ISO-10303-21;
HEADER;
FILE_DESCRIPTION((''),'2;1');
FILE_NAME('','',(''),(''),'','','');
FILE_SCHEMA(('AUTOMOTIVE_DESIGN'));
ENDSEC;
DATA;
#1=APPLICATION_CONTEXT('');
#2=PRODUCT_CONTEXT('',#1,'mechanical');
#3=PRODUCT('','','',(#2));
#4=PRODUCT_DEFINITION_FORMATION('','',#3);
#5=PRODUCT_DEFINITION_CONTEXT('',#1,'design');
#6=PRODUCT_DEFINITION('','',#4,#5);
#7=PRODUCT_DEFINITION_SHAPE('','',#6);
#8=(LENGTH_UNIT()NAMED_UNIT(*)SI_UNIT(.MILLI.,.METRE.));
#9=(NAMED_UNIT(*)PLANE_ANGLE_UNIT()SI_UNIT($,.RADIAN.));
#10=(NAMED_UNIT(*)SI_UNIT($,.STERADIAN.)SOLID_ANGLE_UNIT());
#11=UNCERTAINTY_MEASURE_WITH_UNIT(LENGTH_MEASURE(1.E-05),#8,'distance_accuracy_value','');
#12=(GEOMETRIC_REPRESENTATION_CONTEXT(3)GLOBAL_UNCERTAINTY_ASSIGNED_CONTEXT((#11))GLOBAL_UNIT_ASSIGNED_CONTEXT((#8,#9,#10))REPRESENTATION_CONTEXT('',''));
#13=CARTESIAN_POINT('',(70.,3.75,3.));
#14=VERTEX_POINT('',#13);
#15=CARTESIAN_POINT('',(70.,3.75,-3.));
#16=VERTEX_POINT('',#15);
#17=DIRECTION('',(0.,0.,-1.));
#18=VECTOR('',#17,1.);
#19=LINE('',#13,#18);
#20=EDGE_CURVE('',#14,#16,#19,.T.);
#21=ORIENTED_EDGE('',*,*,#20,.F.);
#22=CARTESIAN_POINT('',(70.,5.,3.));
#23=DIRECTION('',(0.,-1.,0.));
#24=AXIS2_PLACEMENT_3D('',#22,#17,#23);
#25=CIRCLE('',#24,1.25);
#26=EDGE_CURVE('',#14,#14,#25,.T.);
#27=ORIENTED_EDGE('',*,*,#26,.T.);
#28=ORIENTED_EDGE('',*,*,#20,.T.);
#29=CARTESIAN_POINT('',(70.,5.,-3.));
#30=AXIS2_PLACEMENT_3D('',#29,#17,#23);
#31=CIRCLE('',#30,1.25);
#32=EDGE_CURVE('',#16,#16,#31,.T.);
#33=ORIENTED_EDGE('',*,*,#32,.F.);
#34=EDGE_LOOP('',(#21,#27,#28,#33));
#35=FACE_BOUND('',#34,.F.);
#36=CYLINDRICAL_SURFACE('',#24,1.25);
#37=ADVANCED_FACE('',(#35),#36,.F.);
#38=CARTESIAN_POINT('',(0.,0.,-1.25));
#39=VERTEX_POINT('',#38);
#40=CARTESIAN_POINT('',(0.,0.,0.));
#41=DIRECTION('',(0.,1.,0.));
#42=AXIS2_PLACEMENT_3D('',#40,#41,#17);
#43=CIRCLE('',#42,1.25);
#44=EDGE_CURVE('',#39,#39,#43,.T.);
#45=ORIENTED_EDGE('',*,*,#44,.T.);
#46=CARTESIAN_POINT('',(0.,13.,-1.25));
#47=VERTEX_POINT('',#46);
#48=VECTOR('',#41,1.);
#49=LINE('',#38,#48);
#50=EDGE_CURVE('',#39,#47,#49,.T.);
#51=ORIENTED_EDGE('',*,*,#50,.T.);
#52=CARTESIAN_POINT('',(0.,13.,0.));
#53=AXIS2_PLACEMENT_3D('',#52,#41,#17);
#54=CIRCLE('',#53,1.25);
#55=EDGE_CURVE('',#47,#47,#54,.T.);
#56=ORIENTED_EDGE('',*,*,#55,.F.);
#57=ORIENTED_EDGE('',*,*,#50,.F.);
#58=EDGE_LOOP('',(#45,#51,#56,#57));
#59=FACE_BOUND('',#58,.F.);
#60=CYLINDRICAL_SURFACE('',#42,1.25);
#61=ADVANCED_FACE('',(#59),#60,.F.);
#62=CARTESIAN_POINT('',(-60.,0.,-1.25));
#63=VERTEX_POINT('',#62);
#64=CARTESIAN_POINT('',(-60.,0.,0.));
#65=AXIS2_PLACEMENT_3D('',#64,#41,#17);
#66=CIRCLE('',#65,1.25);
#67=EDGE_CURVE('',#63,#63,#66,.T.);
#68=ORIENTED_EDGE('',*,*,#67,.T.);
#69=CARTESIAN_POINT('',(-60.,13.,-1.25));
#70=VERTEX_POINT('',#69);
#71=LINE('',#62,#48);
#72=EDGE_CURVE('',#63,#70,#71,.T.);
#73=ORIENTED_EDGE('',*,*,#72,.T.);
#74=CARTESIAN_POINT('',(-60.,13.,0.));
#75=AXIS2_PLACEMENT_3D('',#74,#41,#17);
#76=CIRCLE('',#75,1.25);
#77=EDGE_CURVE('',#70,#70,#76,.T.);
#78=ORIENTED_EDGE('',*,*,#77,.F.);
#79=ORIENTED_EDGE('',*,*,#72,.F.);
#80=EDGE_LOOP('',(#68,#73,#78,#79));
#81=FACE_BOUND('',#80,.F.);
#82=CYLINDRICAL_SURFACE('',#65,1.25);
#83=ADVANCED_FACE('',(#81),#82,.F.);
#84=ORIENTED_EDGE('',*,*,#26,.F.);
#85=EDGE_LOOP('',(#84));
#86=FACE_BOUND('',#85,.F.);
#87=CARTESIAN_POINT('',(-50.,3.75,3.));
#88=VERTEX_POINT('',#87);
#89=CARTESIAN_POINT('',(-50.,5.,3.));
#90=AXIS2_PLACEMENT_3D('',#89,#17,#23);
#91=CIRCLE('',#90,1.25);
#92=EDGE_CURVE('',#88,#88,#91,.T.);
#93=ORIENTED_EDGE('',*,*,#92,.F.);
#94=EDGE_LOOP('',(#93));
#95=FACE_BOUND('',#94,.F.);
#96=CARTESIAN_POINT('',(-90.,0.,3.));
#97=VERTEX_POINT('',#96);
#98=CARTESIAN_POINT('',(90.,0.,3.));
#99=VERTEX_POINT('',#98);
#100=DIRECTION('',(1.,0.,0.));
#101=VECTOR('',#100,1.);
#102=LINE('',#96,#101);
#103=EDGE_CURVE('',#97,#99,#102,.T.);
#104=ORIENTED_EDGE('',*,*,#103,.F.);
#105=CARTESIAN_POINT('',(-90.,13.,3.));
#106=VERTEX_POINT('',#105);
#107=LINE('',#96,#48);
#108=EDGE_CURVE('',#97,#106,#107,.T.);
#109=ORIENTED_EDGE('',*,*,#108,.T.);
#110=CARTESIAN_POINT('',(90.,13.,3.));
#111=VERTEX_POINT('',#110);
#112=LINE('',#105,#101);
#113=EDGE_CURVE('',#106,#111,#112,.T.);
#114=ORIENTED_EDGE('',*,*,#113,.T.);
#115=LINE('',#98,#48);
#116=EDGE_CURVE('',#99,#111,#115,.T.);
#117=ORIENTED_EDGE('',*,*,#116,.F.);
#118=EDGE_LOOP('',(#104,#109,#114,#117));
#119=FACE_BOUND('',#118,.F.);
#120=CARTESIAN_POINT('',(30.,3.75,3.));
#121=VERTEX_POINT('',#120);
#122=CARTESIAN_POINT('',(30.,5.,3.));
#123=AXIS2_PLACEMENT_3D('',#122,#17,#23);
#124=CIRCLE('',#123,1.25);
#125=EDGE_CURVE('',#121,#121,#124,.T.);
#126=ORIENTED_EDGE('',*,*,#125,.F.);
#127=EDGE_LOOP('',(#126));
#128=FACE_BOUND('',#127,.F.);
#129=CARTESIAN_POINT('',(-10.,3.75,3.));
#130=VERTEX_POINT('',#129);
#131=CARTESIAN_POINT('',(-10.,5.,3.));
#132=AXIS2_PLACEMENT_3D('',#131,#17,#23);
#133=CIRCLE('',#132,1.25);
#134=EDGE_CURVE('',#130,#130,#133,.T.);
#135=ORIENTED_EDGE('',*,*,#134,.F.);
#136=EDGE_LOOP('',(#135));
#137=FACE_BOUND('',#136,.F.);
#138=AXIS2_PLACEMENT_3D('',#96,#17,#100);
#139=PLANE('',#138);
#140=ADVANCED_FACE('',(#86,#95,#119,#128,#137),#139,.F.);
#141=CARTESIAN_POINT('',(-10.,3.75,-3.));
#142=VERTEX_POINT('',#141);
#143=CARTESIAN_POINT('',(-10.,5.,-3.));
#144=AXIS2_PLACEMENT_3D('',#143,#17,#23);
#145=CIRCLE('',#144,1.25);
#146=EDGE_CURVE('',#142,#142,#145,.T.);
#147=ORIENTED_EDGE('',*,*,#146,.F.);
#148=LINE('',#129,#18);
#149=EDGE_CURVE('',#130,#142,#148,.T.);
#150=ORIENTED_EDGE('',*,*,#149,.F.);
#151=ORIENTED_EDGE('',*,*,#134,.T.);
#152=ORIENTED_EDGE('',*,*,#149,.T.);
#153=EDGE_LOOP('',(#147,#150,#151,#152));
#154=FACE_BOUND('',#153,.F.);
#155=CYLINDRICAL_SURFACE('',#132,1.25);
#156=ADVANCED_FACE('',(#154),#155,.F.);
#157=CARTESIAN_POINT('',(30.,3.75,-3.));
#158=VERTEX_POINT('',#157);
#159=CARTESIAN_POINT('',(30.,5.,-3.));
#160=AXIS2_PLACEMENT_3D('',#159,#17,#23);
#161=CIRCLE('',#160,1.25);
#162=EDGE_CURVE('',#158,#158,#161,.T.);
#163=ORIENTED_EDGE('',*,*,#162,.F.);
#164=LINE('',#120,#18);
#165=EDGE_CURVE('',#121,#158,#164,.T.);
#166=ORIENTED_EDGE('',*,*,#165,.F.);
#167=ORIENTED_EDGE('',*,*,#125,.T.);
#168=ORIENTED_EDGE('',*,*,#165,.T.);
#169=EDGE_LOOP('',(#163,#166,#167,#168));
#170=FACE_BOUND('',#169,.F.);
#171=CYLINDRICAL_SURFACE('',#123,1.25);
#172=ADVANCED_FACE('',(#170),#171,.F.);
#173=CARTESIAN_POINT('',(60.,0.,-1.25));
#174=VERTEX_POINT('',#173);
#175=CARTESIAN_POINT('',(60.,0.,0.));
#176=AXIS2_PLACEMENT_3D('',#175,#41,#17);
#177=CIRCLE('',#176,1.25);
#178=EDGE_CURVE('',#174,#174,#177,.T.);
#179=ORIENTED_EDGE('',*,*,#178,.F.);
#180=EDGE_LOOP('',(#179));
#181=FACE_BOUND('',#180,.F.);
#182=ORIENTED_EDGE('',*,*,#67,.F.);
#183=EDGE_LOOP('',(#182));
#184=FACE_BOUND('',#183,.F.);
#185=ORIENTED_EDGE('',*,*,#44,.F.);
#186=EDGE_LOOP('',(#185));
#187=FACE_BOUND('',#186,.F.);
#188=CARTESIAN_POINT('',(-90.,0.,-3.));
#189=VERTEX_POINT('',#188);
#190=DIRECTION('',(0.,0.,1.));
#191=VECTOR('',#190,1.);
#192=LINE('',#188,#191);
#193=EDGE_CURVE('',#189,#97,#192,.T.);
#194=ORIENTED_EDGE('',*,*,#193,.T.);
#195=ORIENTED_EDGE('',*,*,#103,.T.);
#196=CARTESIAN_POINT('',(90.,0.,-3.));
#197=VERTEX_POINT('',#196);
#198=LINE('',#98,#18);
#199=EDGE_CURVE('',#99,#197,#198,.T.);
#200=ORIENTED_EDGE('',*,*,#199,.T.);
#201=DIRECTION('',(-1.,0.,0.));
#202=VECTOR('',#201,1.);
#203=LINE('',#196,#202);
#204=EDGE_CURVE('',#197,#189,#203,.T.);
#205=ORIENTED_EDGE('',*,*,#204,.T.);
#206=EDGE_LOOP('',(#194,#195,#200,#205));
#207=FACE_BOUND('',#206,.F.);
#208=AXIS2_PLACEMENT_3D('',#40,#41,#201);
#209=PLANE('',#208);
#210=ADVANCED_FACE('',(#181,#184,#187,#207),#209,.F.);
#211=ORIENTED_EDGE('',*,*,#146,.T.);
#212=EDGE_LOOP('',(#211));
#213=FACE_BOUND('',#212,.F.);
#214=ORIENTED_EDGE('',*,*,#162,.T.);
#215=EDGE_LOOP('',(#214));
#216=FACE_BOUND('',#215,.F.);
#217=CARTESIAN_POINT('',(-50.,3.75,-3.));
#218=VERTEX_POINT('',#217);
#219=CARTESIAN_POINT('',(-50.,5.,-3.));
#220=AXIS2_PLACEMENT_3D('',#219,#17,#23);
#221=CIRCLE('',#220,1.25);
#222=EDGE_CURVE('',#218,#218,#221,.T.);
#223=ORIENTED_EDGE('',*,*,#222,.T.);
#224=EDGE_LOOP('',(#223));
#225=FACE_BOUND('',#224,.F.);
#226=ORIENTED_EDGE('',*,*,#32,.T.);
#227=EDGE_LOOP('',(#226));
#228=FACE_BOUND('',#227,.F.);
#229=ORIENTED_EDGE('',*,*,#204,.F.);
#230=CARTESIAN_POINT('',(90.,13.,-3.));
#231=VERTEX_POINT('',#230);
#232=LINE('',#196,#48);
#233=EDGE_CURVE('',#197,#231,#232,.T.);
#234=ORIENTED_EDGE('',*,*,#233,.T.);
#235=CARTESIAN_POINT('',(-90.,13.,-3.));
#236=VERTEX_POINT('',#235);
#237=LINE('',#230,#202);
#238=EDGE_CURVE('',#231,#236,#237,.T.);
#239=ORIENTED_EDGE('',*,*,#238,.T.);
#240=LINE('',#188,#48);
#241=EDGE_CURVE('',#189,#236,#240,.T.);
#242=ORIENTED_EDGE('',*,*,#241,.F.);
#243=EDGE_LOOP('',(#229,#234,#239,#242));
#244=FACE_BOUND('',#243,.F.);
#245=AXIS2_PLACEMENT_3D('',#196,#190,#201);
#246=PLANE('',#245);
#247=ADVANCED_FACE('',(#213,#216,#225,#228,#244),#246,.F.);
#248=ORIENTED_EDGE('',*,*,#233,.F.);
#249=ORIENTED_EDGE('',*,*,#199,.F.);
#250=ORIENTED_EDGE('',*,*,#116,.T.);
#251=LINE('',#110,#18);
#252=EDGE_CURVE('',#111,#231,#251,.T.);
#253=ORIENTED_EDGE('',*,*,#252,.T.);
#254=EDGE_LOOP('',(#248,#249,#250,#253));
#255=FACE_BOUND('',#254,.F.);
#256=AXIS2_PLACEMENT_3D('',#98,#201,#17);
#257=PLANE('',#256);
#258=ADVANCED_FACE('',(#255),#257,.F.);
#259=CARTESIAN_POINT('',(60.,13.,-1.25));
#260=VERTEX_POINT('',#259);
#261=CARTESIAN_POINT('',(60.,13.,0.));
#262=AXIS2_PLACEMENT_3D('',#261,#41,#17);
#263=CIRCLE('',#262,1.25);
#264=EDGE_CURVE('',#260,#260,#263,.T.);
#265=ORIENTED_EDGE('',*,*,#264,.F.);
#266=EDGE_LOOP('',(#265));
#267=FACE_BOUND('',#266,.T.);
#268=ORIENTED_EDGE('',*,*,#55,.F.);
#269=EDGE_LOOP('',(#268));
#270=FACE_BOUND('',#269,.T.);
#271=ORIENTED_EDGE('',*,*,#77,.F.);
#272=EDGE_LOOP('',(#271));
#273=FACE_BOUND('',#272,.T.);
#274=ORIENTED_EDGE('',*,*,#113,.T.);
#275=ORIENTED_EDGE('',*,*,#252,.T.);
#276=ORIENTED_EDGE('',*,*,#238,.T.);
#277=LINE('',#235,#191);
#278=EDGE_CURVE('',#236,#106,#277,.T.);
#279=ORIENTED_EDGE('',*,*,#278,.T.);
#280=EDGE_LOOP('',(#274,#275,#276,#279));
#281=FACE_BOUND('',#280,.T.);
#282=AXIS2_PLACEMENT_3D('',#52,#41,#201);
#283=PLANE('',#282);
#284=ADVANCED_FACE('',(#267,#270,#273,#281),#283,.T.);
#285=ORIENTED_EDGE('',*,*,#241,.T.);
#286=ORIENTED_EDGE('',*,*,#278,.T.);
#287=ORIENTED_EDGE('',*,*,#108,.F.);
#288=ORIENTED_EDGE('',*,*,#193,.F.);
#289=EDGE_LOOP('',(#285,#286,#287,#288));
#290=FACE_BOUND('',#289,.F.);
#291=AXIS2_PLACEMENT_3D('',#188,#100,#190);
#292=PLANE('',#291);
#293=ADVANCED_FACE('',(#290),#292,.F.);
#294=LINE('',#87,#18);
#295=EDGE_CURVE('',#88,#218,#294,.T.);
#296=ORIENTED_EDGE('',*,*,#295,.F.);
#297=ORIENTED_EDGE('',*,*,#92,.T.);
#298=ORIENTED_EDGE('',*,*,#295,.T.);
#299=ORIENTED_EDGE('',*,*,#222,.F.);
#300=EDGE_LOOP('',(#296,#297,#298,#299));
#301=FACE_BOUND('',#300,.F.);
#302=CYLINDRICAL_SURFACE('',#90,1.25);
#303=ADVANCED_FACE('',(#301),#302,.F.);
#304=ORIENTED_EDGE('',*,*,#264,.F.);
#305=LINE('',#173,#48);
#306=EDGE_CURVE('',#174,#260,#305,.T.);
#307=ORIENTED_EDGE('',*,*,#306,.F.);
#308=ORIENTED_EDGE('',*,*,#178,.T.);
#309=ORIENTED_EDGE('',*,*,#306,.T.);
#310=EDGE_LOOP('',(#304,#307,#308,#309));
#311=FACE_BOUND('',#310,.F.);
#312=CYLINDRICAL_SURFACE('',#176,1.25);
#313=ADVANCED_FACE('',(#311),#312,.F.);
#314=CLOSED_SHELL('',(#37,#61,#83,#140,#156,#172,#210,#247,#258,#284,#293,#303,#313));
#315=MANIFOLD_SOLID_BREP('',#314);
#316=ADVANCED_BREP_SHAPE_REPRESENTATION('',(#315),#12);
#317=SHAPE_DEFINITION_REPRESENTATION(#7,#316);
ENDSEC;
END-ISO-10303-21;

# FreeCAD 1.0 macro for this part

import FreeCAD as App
import Part
import Sketcher

doc = App.newDocument("Part")
body = doc.addObject("PartDesign::Body", "Body")

# Sketch on XZ plane
sketch1 = body.newObject("Sketcher::SketchObject", "Sketch")
sketch1.AttachmentSupport = (doc.getObject("XZ_Plane"), [""])
sketch1.MapMode = "FlatFace"
sketch1.addGeometry([
    Part.LineSegment(App.Vector(90, 3, 0), App.Vector(90, -3, 0)),
    Part.LineSegment(App.Vector(90, -3, 0), App.Vector(-90, -3, 0)),
    Part.LineSegment(App.Vector(-90, -3, 0), App.Vector(-90, 3, 0)),
    Part.LineSegment(App.Vector(-90, 3, 0), App.Vector(90, 3, 0)),
], False)
sketch1.addConstraint([
    Sketcher.Constraint("Coincident", 0, 2, 1, 1),
    Sketcher.Constraint("Coincident", 1, 2, 2, 1),
    Sketcher.Constraint("Coincident", 2, 2, 3, 1),
    Sketcher.Constraint("Coincident", 3, 2, 0, 1),
    Sketcher.Constraint("Vertical", 0),
    Sketcher.Constraint("Horizontal", 1),
    Sketcher.Constraint("Vertical", 2),
    Sketcher.Constraint("Horizontal", 3),
    Sketcher.Constraint("Symmetric", 0, 2, 2, 2, -1, 1),
    Sketcher.Constraint("DistanceX", 1, 2, 1, 1, 180.0),
    Sketcher.Constraint("DistanceY", 0, 2, 0, 1, 6.0),
])
pad1 = body.newObject("PartDesign::Pad", "Pad")
pad1.Profile = sketch1
pad1.Length = 13
pad1.Reversed = True

# Sketch on XY plane
sketch2 = body.newObject("Sketcher::SketchObject", "Sketch001")
sketch2.AttachmentSupport = (doc.getObject("XY_Plane"), [""])
sketch2.MapMode = "FlatFace"
sketch2.AttachmentOffset = App.Placement(App.Vector(0, 0, 3), App.Rotation())
sketch2.addGeometry([
    Part.Circle(App.Vector(70, 5, 0), App.Vector(0, 0, 1), 1.25),
    Part.Circle(App.Vector(30, 5, 0), App.Vector(0, 0, 1), 1.25),
    Part.Circle(App.Vector(-10, 5, 0), App.Vector(0, 0, 1), 1.25),
    Part.Circle(App.Vector(-50, 5, 0), App.Vector(0, 0, 1), 1.25),
], False)
sketch2.addConstraint([
    Sketcher.Constraint("Equal", 0, 1),
    Sketcher.Constraint("Equal", 1, 2),
    Sketcher.Constraint("Equal", 2, 3),
    Sketcher.Constraint("Horizontal", 0, 3, 1, 3),
    Sketcher.Constraint("Horizontal", 1, 3, 2, 3),
    Sketcher.Constraint("Horizontal", 2, 3, 3, 3),
    Sketcher.Constraint("Diameter", 0, 2.5),
    Sketcher.Constraint("DistanceX", -1, 1, 0, 3, 70.0),
    Sketcher.Constraint("DistanceY", -1, 1, 0, 3, 5.0),
    Sketcher.Constraint("DistanceX", -1, 1, 1, 3, 30.0),
    Sketcher.Constraint("DistanceX", 2, 3, -1, 1, 10.0),
    Sketcher.Constraint("DistanceX", 3, 3, -1, 1, 50.0),
])
doc.recompute()
hole = body.newObject("PartDesign::Hole", "Hole")
hole.Profile = sketch2
hole.ThreadType = "None"
hole.Diameter = 2.5
hole.DepthType = "ThroughAll"

# Sketch on XZ plane
sketch3 = body.newObject("Sketcher::SketchObject", "Sketch002")
sketch3.AttachmentSupport = (doc.getObject("XZ_Plane"), [""])
sketch3.MapMode = "FlatFace"
sketch3.addGeometry([
    Part.Circle(App.Vector(60, 0, 0), App.Vector(0, 0, 1), 1.25),
    Part.Circle(App.Vector(0, 0, 0), App.Vector(0, 0, 1), 1.25),
    Part.Circle(App.Vector(-60, 0, 0), App.Vector(0, 0, 1), 1.25),
], False)
sketch3.addConstraint([
    Sketcher.Constraint("Coincident", 1, 3, -1, 1),
    Sketcher.Constraint("Equal", 0, 1),
    Sketcher.Constraint("Equal", 1, 2),
    Sketcher.Constraint("Symmetric", 0, 3, 2, 3, -1, 1),
    Sketcher.Constraint("PointOnObject", 0, 3, -1),
    Sketcher.Constraint("Diameter", 0, 2.5),
    Sketcher.Constraint("DistanceX", -1, 1, 0, 3, 60.0),
])
doc.recompute()
hole2 = body.newObject("PartDesign::Hole", "Hole001")
hole2.Profile = sketch3
hole2.ThreadType = "None"
hole2.Diameter = 2.5
hole2.DepthType = "ThroughAll"

doc.recompute()
